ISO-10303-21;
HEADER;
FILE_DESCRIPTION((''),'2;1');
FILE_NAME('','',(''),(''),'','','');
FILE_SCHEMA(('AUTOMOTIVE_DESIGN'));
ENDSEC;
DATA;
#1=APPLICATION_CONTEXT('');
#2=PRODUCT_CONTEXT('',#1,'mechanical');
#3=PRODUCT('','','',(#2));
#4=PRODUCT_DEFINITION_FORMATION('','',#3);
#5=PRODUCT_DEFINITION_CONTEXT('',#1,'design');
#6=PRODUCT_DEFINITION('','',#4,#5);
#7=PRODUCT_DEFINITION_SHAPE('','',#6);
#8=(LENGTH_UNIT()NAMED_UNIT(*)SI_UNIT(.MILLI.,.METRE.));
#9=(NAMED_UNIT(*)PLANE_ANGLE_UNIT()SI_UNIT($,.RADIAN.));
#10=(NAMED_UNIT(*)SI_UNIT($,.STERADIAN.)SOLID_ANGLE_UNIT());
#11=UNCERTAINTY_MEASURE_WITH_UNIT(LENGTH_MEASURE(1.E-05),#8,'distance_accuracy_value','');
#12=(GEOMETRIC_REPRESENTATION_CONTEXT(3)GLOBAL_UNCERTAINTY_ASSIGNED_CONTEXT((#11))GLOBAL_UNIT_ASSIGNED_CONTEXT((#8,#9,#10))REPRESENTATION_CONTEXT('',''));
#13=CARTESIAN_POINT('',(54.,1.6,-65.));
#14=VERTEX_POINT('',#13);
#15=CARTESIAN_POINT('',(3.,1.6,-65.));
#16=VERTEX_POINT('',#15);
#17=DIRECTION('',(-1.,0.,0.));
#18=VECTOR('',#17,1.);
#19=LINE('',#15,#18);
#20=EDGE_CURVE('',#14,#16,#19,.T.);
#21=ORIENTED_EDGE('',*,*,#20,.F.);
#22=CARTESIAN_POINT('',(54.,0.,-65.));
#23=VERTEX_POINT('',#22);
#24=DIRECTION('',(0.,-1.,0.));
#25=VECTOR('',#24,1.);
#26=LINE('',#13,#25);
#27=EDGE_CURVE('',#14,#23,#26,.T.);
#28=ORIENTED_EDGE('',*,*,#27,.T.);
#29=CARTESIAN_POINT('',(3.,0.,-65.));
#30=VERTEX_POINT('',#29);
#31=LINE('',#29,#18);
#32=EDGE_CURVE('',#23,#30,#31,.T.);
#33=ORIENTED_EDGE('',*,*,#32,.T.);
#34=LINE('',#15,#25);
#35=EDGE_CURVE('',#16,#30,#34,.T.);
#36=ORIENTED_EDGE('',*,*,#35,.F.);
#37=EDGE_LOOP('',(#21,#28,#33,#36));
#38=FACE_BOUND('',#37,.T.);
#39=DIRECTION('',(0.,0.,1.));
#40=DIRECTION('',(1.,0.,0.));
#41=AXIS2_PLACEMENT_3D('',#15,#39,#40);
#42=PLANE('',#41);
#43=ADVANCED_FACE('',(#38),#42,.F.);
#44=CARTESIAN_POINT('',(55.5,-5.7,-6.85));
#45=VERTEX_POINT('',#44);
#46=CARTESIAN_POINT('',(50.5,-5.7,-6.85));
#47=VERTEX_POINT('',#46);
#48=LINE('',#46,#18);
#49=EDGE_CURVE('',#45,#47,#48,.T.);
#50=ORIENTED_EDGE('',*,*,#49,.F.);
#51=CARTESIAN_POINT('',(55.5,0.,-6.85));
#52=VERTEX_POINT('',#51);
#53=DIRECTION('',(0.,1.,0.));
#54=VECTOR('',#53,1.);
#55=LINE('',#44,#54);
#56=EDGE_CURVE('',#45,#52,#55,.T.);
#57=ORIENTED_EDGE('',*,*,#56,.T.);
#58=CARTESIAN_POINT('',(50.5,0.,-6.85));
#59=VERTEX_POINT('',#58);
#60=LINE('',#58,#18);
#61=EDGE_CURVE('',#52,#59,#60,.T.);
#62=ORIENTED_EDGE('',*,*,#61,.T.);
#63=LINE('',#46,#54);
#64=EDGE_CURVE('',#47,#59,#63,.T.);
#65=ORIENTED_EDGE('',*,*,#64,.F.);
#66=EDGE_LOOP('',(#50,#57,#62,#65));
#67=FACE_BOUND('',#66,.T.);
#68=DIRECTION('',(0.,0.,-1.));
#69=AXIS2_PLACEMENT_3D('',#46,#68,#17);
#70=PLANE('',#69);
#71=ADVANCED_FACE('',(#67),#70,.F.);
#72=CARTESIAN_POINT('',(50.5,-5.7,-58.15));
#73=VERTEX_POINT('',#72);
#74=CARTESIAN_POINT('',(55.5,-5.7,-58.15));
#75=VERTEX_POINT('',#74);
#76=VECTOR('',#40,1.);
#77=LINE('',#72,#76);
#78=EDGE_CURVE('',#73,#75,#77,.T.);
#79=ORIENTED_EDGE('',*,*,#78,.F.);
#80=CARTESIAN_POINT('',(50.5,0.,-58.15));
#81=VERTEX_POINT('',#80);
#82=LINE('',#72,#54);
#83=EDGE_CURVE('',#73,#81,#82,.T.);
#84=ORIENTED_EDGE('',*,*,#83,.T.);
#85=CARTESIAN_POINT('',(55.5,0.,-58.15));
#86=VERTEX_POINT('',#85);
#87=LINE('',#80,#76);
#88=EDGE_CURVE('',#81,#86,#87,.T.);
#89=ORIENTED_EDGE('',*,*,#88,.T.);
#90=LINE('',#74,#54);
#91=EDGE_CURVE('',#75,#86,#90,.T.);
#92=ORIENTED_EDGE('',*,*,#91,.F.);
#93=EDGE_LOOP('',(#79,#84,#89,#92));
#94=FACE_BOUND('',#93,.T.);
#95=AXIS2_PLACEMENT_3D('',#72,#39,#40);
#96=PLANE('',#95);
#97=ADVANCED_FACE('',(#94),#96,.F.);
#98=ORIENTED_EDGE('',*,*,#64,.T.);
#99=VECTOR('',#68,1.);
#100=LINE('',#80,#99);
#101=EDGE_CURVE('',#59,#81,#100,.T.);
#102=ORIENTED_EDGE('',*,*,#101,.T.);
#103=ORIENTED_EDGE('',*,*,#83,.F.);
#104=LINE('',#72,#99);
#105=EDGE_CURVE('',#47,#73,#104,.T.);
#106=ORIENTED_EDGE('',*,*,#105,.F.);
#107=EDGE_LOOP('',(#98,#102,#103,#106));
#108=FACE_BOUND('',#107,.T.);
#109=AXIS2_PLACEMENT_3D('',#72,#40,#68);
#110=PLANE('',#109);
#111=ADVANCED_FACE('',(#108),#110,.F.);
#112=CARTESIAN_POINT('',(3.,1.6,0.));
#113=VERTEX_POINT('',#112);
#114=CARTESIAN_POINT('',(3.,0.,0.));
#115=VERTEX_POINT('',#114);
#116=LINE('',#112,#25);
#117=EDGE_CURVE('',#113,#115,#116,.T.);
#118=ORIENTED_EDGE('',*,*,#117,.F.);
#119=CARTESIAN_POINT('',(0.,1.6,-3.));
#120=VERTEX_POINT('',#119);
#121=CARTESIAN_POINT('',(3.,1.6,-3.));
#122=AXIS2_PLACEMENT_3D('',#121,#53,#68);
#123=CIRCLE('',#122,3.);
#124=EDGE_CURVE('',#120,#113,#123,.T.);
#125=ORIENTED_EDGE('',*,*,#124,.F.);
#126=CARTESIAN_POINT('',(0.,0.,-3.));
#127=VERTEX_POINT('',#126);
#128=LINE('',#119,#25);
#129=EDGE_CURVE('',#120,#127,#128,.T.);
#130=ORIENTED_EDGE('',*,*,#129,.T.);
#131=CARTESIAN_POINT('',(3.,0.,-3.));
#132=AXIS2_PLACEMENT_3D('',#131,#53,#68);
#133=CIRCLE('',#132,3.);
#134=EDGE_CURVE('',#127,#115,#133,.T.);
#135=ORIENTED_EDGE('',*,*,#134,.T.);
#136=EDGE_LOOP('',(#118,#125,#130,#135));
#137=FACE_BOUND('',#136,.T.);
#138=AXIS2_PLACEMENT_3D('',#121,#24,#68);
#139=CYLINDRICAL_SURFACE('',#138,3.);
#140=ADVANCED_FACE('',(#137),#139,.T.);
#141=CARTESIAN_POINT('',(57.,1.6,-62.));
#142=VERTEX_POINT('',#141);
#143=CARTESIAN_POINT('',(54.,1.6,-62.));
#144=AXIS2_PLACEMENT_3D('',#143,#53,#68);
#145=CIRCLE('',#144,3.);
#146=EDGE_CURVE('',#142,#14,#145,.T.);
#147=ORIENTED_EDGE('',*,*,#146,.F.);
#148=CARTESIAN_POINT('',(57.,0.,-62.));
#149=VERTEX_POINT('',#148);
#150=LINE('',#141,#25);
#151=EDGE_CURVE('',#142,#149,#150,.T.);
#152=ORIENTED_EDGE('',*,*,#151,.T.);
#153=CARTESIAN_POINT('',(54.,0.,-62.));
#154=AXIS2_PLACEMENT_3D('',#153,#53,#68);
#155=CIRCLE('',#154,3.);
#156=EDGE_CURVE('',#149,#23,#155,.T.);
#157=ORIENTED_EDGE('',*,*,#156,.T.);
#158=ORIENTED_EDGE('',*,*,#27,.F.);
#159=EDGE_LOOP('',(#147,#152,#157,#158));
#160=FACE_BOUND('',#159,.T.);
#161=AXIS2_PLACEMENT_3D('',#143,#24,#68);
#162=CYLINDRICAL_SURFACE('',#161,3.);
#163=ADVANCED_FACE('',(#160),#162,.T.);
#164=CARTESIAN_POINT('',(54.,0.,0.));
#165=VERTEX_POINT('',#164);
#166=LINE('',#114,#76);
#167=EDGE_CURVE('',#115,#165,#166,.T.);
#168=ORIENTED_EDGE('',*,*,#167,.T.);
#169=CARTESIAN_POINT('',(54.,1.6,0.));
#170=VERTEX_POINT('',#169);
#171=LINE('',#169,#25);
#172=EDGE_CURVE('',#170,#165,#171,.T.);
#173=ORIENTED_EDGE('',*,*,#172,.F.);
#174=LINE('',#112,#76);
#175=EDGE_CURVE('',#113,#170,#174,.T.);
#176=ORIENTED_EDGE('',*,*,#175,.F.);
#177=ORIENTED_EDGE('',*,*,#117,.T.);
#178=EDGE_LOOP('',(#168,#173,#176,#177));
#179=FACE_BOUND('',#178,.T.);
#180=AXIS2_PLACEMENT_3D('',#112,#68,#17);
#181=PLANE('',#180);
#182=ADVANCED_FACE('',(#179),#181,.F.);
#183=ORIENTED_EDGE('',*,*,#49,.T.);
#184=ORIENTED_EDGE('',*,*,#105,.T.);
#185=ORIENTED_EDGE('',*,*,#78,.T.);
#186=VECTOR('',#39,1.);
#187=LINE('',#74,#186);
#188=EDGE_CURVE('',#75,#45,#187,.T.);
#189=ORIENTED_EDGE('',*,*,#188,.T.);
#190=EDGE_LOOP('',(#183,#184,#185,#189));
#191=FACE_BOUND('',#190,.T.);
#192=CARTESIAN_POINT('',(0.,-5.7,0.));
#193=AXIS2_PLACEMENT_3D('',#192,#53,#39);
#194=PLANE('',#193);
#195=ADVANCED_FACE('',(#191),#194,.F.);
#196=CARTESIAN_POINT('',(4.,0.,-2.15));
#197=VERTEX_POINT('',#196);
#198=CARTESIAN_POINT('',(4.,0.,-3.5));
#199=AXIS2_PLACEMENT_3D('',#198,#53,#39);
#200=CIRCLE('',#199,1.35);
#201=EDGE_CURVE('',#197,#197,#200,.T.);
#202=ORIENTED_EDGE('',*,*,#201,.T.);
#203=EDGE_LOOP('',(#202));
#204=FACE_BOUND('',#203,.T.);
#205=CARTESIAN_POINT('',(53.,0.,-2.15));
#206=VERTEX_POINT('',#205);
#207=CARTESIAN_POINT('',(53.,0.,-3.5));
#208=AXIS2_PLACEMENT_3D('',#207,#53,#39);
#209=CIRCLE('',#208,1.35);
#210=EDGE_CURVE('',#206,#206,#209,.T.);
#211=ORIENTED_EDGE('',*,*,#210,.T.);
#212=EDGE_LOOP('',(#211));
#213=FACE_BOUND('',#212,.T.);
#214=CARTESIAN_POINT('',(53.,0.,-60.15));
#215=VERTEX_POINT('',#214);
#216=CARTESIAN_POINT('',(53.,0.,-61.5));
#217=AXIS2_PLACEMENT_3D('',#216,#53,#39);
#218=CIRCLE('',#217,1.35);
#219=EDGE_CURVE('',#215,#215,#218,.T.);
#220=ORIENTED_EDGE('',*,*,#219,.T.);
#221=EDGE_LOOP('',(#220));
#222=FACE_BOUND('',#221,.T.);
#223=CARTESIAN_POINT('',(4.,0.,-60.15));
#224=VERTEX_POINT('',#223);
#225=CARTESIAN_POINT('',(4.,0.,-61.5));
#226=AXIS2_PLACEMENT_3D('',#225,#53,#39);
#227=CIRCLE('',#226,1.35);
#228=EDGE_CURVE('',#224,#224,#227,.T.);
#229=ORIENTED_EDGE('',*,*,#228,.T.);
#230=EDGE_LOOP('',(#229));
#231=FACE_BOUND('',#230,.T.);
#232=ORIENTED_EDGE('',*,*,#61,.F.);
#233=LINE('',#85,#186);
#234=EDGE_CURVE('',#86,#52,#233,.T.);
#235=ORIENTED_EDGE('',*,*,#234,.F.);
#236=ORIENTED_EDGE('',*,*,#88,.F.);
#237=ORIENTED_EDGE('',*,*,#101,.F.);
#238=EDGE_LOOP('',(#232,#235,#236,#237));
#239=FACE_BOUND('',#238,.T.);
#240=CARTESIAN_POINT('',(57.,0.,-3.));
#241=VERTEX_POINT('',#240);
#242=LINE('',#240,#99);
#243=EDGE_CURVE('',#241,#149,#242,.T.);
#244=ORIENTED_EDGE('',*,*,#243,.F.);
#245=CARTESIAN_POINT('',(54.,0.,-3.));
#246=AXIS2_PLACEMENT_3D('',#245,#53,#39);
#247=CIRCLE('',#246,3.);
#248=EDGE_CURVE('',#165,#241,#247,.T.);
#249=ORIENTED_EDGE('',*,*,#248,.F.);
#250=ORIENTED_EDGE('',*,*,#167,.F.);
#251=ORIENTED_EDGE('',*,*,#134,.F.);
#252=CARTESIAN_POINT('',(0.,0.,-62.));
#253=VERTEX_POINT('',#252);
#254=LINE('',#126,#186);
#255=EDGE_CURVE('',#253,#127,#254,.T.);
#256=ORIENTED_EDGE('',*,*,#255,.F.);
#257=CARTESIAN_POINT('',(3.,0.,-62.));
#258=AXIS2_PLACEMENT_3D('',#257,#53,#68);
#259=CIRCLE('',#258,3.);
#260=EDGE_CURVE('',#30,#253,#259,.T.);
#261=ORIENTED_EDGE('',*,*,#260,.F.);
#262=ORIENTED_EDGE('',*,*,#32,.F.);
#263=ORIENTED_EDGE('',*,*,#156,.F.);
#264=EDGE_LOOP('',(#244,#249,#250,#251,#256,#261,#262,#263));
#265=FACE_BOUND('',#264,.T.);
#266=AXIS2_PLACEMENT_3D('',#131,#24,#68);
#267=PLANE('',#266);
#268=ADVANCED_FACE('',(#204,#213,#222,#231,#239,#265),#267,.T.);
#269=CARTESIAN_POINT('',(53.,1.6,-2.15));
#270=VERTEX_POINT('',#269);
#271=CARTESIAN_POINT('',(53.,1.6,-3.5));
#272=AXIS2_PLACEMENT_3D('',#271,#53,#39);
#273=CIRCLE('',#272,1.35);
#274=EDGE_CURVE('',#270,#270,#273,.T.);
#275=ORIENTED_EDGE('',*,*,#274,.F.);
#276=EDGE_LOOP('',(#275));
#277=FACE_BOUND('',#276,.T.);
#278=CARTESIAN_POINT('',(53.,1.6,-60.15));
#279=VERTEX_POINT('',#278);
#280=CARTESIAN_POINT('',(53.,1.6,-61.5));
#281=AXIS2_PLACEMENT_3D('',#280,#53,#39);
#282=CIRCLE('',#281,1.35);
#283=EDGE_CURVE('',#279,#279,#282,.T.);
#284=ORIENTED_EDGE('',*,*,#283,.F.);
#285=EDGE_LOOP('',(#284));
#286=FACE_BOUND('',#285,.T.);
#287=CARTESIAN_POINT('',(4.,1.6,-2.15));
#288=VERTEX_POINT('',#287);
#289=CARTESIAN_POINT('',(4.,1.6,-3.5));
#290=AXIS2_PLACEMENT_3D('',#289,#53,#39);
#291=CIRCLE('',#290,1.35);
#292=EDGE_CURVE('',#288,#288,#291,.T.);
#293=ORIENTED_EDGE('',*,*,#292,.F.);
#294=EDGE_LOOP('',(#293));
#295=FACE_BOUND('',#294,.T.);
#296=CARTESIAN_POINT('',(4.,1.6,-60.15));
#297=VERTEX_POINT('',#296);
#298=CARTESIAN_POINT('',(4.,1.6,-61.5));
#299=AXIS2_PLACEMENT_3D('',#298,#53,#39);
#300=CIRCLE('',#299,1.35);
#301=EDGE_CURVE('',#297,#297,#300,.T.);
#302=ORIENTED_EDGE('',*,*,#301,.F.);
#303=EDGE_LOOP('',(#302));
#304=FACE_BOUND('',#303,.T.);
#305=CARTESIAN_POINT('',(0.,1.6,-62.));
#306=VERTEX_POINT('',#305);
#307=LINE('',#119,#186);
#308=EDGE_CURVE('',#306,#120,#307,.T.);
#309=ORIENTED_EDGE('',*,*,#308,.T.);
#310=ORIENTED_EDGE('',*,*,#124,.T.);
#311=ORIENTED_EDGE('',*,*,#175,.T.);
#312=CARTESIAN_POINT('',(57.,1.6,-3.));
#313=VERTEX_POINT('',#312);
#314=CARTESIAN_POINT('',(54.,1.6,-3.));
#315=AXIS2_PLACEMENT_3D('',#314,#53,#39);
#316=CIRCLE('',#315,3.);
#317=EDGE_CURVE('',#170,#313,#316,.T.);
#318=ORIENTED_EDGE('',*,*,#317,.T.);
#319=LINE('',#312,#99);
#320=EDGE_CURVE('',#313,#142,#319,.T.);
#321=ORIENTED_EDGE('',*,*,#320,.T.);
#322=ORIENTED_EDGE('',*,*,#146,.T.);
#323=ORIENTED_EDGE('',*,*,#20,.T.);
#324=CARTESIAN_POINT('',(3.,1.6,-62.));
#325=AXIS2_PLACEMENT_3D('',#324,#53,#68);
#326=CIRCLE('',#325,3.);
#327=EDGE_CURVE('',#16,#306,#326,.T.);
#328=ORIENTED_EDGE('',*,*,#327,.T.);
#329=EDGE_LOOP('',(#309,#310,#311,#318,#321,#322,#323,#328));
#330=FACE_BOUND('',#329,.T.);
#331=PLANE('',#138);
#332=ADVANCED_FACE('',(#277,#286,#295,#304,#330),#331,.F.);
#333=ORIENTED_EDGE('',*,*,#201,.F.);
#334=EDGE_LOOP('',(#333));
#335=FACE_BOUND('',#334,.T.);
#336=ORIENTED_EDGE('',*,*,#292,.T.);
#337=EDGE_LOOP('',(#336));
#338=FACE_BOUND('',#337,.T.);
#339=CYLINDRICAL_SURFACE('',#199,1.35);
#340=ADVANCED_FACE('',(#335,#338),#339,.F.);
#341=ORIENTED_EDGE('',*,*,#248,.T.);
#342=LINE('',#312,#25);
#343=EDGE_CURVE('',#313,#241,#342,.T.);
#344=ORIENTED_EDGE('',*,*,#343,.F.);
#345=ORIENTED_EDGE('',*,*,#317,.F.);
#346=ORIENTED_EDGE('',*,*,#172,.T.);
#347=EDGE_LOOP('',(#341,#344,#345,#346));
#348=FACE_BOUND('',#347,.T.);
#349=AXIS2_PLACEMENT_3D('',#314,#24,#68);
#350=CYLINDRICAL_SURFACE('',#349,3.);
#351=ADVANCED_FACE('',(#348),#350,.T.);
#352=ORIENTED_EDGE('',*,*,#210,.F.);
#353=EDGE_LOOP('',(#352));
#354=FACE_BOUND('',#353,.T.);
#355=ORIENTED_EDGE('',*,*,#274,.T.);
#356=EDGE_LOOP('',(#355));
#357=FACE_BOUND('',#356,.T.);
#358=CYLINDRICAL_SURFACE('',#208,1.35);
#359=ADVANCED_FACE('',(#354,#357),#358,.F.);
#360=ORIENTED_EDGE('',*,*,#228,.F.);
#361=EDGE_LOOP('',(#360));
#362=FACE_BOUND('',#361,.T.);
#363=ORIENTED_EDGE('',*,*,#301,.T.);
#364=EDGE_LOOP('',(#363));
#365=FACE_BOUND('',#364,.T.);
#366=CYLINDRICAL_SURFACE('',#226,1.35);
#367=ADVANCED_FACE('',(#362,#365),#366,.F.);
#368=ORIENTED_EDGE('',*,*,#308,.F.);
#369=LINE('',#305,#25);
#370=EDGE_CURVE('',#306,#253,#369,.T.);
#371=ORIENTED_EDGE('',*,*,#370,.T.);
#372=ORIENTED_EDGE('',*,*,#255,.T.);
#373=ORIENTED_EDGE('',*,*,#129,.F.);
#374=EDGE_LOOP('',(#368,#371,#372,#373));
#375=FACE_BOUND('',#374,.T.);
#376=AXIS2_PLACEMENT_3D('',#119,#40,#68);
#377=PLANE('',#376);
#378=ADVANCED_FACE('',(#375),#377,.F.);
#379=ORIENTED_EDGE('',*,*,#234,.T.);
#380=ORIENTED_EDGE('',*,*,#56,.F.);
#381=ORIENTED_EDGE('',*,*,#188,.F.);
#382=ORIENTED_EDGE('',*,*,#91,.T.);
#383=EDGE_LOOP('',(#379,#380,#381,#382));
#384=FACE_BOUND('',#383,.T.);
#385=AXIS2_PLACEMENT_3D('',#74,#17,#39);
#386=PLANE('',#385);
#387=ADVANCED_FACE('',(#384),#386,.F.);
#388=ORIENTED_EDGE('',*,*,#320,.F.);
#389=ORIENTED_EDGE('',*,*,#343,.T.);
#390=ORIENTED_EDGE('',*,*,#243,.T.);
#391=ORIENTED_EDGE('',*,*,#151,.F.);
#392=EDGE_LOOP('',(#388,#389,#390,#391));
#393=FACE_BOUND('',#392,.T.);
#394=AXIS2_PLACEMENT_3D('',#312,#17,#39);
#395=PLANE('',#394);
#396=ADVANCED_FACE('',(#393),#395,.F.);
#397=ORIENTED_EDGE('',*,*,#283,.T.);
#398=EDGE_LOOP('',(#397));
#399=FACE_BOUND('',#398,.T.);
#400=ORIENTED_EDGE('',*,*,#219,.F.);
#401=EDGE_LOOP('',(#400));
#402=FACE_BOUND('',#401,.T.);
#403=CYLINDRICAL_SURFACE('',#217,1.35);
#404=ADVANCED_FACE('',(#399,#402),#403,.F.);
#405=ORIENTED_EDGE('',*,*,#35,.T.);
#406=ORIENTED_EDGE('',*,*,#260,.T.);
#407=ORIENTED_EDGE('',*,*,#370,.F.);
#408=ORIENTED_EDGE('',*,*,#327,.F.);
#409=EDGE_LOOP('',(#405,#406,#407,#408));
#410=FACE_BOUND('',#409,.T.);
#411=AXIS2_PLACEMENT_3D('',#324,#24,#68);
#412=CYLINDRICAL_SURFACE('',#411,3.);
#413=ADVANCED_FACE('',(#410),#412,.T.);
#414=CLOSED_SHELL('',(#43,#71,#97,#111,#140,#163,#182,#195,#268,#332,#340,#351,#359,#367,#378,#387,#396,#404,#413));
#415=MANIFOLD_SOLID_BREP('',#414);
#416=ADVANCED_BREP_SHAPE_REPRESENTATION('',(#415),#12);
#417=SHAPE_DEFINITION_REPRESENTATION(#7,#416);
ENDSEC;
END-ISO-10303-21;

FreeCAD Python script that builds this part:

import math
import FreeCAD as App
import Part
import Sketcher
from FreeCAD import Vector
Q = App.Units.Quantity

doc = App.newDocument("Part")
body = doc.addObject("PartDesign::Body", "Body")

sketch1 = body.newObject("Sketcher::SketchObject", "Sketch")
sketch1.AttachmentSupport = (doc.getObject("XZ_Plane"), [""])
sketch1.MapMode = "FlatFace"
sketch1.addGeometry(Part.LineSegment(Vector(3, 0, 0), Vector(54, 0, 0)), False)
sketch1.addGeometry(Part.ArcOfCircle(Part.Circle(Vector(54, -3, 0), Vector(0, 0, 1), 3), math.radians(0), math.radians(90)), False)
sketch1.addGeometry(Part.LineSegment(Vector(57, -3, 0), Vector(57, -62, 0)), False)
sketch1.addGeometry(Part.ArcOfCircle(Part.Circle(Vector(54, -62, 0), Vector(0, 0, 1), 3), math.radians(-90), math.radians(0)), False)
sketch1.addGeometry(Part.LineSegment(Vector(54, -65, 0), Vector(3, -65, 0)), False)
sketch1.addGeometry(Part.ArcOfCircle(Part.Circle(Vector(3, -62, 0), Vector(0, 0, 1), 3), math.radians(180), math.radians(270)), False)
sketch1.addGeometry(Part.LineSegment(Vector(0, -62, 0), Vector(0, -3, 0)), False)
sketch1.addGeometry(Part.ArcOfCircle(Part.Circle(Vector(3, -3, 0), Vector(0, 0, 1), 3), math.radians(90), math.radians(180)), False)
sketch1.addConstraint(Sketcher.Constraint("Tangent", 0, 2, 1, 2))
sketch1.addConstraint(Sketcher.Constraint("Tangent", 1, 1, 2, 1))
sketch1.addConstraint(Sketcher.Constraint("Tangent", 2, 2, 3, 2))
sketch1.addConstraint(Sketcher.Constraint("Tangent", 3, 1, 4, 1))
sketch1.addConstraint(Sketcher.Constraint("Tangent", 4, 2, 5, 2))
sketch1.addConstraint(Sketcher.Constraint("Tangent", 5, 1, 6, 1))
sketch1.addConstraint(Sketcher.Constraint("Tangent", 6, 2, 7, 2))
sketch1.addConstraint(Sketcher.Constraint("Tangent", 7, 1, 0, 1))
sketch1.addConstraint(Sketcher.Constraint("Horizontal", 0))
sketch1.addConstraint(Sketcher.Constraint("Vertical", 2))
sketch1.addConstraint(Sketcher.Constraint("Horizontal", 4))
sketch1.addConstraint(Sketcher.Constraint("Vertical", 6))
sketch1.addConstraint(Sketcher.Constraint("Equal", 1, 3))
sketch1.addConstraint(Sketcher.Constraint("Equal", 3, 5))
sketch1.addConstraint(Sketcher.Constraint("Equal", 5, 7))
sketch1.addConstraint(Sketcher.Constraint("PointOnObject", 0, 2, -1))
sketch1.addConstraint(Sketcher.Constraint("PointOnObject", 5, 1, -2))
sketch1.addConstraint(Sketcher.Constraint("Radius", 1, Q("3 mm")))
sketch1.addConstraint(Sketcher.Constraint("DistanceX", 0, 1, 0, 2, Q("51 mm")))
sketch1.addConstraint(Sketcher.Constraint("DistanceY", 2, 2, 2, 1, Q("59 mm")))
pad1 = body.newObject("PartDesign::Pad", "Pad")
pad1.Profile = sketch1
pad1.Length = 1.6
pad1.Reversed = True

sketch2 = body.newObject("Sketcher::SketchObject", "Sketch001")
sketch2.AttachmentSupport = (doc.getObject("XZ_Plane"), [""])
sketch2.MapMode = "FlatFace"
sketch2.AttachmentOffset = App.Placement(Vector(0, 0, -1.6), App.Rotation())
sketch2.addGeometry(Part.Circle(Vector(4, -61.5, 0), Vector(0, 0, 1), 1.35), False)
sketch2.addGeometry(Part.Circle(Vector(53, -61.5, 0), Vector(0, 0, 1), 1.35), False)
sketch2.addGeometry(Part.Circle(Vector(53, -3.5, 0), Vector(0, 0, 1), 1.35), False)
sketch2.addGeometry(Part.Circle(Vector(4, -3.5, 0), Vector(0, 0, 1), 1.35), False)
sketch2.addConstraint(Sketcher.Constraint("Equal", 0, 1))
sketch2.addConstraint(Sketcher.Constraint("Equal", 1, 2))
sketch2.addConstraint(Sketcher.Constraint("Equal", 2, 3))
sketch2.addConstraint(Sketcher.Constraint("Horizontal", 0, 3, 1, 3))
sketch2.addConstraint(Sketcher.Constraint("Horizontal", 2, 3, 3, 3))
sketch2.addConstraint(Sketcher.Constraint("Vertical", 1, 3, 2, 3))
sketch2.addConstraint(Sketcher.Constraint("Vertical", 0, 3, 3, 3))
sketch2.addConstraint(Sketcher.Constraint("Diameter", 0, Q("2.7 mm")))
sketch2.addConstraint(Sketcher.Constraint("DistanceX", -1, 1, 0, 3, Q("4 mm")))
sketch2.addConstraint(Sketcher.Constraint("DistanceX", -1, 1, 1, 3, Q("53 mm")))
sketch2.addConstraint(Sketcher.Constraint("DistanceY", 1, 3, 2, 3, Q("58 mm")))
sketch2.addConstraint(Sketcher.Constraint("DistanceY", 0, 3, -1, 1, Q("61.5 mm")))
pocket1 = body.newObject("PartDesign::Pocket", "Pocket")
pocket1.Profile = sketch2
pocket1.Type = "ThroughAll"
pocket1.Reversed = True

sketch3 = body.newObject("Sketcher::SketchObject", "Sketch002")
sketch3.AttachmentSupport = (doc.getObject("XZ_Plane"), [""])
sketch3.MapMode = "FlatFace"
sketch3.addGeometry(Part.LineSegment(Vector(50.5, -6.85, 0), Vector(50.5, -58.15, 0)), False)
sketch3.addGeometry(Part.LineSegment(Vector(50.5, -58.15, 0), Vector(55.5, -58.15, 0)), False)
sketch3.addGeometry(Part.LineSegment(Vector(55.5, -58.15, 0), Vector(55.5, -6.85, 0)), False)
sketch3.addGeometry(Part.LineSegment(Vector(55.5, -6.85, 0), Vector(50.5, -6.85, 0)), False)
sketch3.addConstraint(Sketcher.Constraint("Coincident", 0, 2, 1, 1))
sketch3.addConstraint(Sketcher.Constraint("Coincident", 1, 2, 2, 1))
sketch3.addConstraint(Sketcher.Constraint("Coincident", 2, 2, 3, 1))
sketch3.addConstraint(Sketcher.Constraint("Coincident", 3, 2, 0, 1))
sketch3.addConstraint(Sketcher.Constraint("Vertical", 0))
sketch3.addConstraint(Sketcher.Constraint("Horizontal", 1))
sketch3.addConstraint(Sketcher.Constraint("Vertical", 2))
sketch3.addConstraint(Sketcher.Constraint("Horizontal", 3))
sketch3.addConstraint(Sketcher.Constraint("DistanceX", 1, 1, 1, 2, Q("5 mm")))
sketch3.addConstraint(Sketcher.Constraint("DistanceY", 0, 2, 0, 1, Q("51.3 mm")))
sketch3.addConstraint(Sketcher.Constraint("DistanceX", -1, 1, 0, 2, Q("50.5 mm")))
sketch3.addConstraint(Sketcher.Constraint("DistanceY", 0, 2, -1, 1, Q("58.15 mm")))
pad2 = body.newObject("PartDesign::Pad", "Pad001")
pad2.Profile = sketch3
pad2.Length = 5.7

doc.recompute()
